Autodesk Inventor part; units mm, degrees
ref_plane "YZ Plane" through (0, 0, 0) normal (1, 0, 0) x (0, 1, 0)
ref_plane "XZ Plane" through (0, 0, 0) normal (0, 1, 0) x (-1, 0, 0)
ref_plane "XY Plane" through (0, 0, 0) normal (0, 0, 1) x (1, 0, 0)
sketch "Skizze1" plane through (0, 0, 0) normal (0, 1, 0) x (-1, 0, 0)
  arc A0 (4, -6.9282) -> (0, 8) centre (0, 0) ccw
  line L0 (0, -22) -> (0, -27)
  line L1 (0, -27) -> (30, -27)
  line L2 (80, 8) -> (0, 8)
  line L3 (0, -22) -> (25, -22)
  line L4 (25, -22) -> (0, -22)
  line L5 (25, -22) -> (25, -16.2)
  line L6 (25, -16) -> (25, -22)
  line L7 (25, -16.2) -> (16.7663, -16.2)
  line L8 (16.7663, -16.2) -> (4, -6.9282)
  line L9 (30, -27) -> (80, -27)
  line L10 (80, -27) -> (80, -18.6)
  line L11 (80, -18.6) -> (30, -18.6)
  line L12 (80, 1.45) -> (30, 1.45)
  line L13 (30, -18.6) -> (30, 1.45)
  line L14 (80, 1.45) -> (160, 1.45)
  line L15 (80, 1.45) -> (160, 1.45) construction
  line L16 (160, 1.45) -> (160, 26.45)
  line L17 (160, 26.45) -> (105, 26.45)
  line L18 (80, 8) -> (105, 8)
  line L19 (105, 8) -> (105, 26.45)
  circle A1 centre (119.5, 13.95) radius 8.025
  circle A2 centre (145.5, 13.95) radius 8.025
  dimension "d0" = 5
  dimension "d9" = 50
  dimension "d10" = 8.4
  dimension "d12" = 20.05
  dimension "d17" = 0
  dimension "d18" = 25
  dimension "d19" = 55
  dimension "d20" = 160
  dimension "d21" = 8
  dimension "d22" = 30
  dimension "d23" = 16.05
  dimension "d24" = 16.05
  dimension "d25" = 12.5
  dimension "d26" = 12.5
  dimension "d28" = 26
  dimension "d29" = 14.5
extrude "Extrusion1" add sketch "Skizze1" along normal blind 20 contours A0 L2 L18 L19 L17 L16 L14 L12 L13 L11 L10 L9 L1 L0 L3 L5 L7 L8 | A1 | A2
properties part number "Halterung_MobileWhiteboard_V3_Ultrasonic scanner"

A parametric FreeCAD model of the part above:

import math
import FreeCAD as App
import Part
import Sketcher
Q = App.Units.Quantity

doc = App.newDocument("Part")
body = doc.addObject("PartDesign::Body", "Body")

# Sketch on XZ plane
sketch1 = body.newObject("Sketcher::SketchObject", "Sketch")
sketch1.AttachmentSupport = (doc.getObject("XZ_Plane"), [""])
sketch1.MapMode = "FlatFace"
sketch1.addGeometry(Part.ArcOfCircle(Part.Circle(App.Vector(0, 0, 0), App.Vector(0, 0, 1), 7.999997), math.radians(90), math.radians(239.999988)), False)
sketch1.addGeometry(Part.LineSegment(App.Vector(-4, -6.9282, 0), App.Vector(-16.7663, -16.2, 0)), False)
sketch1.addGeometry(Part.LineSegment(App.Vector(-16.7663, -16.2, 0), App.Vector(-25, -16.2, 0)), False)
sketch1.addGeometry(Part.LineSegment(App.Vector(-25, -16.2, 0), App.Vector(-25, -22, 0)), False)
sketch1.addGeometry(Part.LineSegment(App.Vector(-25, -22, 0), App.Vector(0, -22, 0)), False)
sketch1.addGeometry(Part.LineSegment(App.Vector(0, -22, 0), App.Vector(0, -27, 0)), False)
sketch1.addGeometry(Part.LineSegment(App.Vector(0, -27, 0), App.Vector(-80, -27, 0)), False)
sketch1.addGeometry(Part.LineSegment(App.Vector(-80, -27, 0), App.Vector(-80, -18.6, 0)), False)
sketch1.addGeometry(Part.LineSegment(App.Vector(-80, -18.6, 0), App.Vector(-30, -18.6, 0)), False)
sketch1.addGeometry(Part.LineSegment(App.Vector(-30, -18.6, 0), App.Vector(-30, 1.45, 0)), False)
sketch1.addGeometry(Part.LineSegment(App.Vector(-30, 1.45, 0), App.Vector(-160, 1.45, 0)), False)
sketch1.addGeometry(Part.LineSegment(App.Vector(-160, 1.45, 0), App.Vector(-160, 26.45, 0)), False)
sketch1.addGeometry(Part.LineSegment(App.Vector(-160, 26.45, 0), App.Vector(-105, 26.45, 0)), False)
sketch1.addGeometry(Part.LineSegment(App.Vector(-105, 26.45, 0), App.Vector(-105, 8, 0)), False)
sketch1.addGeometry(Part.LineSegment(App.Vector(-105, 8, 0), App.Vector(0, 8, 0)), False)
sketch1.addConstraint(Sketcher.Constraint("Coincident", 0, 2, 1, 1))
sketch1.addConstraint(Sketcher.Constraint("Coincident", 1, 2, 2, 1))
sketch1.addConstraint(Sketcher.Constraint("Coincident", 2, 2, 3, 1))
sketch1.addConstraint(Sketcher.Constraint("Coincident", 3, 2, 4, 1))
sketch1.addConstraint(Sketcher.Constraint("Coincident", 4, 2, 5, 1))
sketch1.addConstraint(Sketcher.Constraint("Coincident", 5, 2, 6, 1))
sketch1.addConstraint(Sketcher.Constraint("Coincident", 6, 2, 7, 1))
sketch1.addConstraint(Sketcher.Constraint("Coincident", 7, 2, 8, 1))
sketch1.addConstraint(Sketcher.Constraint("Coincident", 8, 2, 9, 1))
sketch1.addConstraint(Sketcher.Constraint("Coincident", 9, 2, 10, 1))
sketch1.addConstraint(Sketcher.Constraint("Coincident", 10, 2, 11, 1))
sketch1.addConstraint(Sketcher.Constraint("Coincident", 11, 2, 12, 1))
sketch1.addConstraint(Sketcher.Constraint("Coincident", 12, 2, 13, 1))
sketch1.addConstraint(Sketcher.Constraint("Coincident", 13, 2, 14, 1))
sketch1.addConstraint(Sketcher.Constraint("Tangent", 14, 2, 0, 1))
sketch1.addConstraint(Sketcher.Constraint("Horizontal", 2))
sketch1.addConstraint(Sketcher.Constraint("Vertical", 3))
sketch1.addConstraint(Sketcher.Constraint("Horizontal", 4))
sketch1.addConstraint(Sketcher.Constraint("Vertical", 5))
sketch1.addConstraint(Sketcher.Constraint("Horizontal", 6))
sketch1.addConstraint(Sketcher.Constraint("Vertical", 7))
sketch1.addConstraint(Sketcher.Constraint("Horizontal", 8))
sketch1.addConstraint(Sketcher.Constraint("Vertical", 9))
sketch1.addConstraint(Sketcher.Constraint("Horizontal", 10))
sketch1.addConstraint(Sketcher.Constraint("Vertical", 11))
sketch1.addConstraint(Sketcher.Constraint("Horizontal", 12))
sketch1.addConstraint(Sketcher.Constraint("Vertical", 13))
sketch1.addConstraint(Sketcher.Constraint("Horizontal", 14))
sketch1.addConstraint(Sketcher.Constraint("Coincident", 0, 3, -1, 1))
sketch1.addConstraint(Sketcher.Constraint("PointOnObject", 4, 2, -2))
sketch1.addConstraint(Sketcher.Constraint("Equal", 4, 11))
sketch1.addConstraint(Sketcher.Constraint("Radius", 0, 8.0))
sketch1.addConstraint(Sketcher.Constraint("DistanceX", 4, 1, 4, 2, 25.0))
sketch1.addConstraint(Sketcher.Constraint("DistanceX", 8, 1, 8, 2, 50.0))
sketch1.addConstraint(Sketcher.Constraint("DistanceX", 12, 1, 12, 2, 55.0))
sketch1.addConstraint(Sketcher.Constraint("DistanceY", 5, 2, 5, 1, 5.0))
sketch1.addConstraint(Sketcher.Constraint("DistanceY", 7, 1, 7, 2, 8.4))
sketch1.addConstraint(Sketcher.Constraint("DistanceX", 8, 2, -1, 1, 30.0))
sketch1.addConstraint(Sketcher.Constraint("DistanceX", 10, 2, -1, 1, 160.0))
sketch1.addConstraint(Sketcher.Constraint("DistanceX", 8, 2, 0, 2, 26.0))
sketch1.addConstraint(Sketcher.Constraint("DistanceY", 4, 2, 14, 2, 30.0))
sketch1.addConstraint(Sketcher.Constraint("DistanceY", 9, 1, 9, 2, 20.05))
sketch1.addConstraint(Sketcher.Constraint("DistanceY", 3, 2, 3, 1, 5.8))
sketch1.addConstraint(Sketcher.Constraint("Angle", 1, Q("-144.0102 deg")))
pad1 = body.newObject("PartDesign::Pad", "Pad")
pad1.Profile = sketch1
pad1.Length = 20
pad1.Reversed = True

doc.recompute()
